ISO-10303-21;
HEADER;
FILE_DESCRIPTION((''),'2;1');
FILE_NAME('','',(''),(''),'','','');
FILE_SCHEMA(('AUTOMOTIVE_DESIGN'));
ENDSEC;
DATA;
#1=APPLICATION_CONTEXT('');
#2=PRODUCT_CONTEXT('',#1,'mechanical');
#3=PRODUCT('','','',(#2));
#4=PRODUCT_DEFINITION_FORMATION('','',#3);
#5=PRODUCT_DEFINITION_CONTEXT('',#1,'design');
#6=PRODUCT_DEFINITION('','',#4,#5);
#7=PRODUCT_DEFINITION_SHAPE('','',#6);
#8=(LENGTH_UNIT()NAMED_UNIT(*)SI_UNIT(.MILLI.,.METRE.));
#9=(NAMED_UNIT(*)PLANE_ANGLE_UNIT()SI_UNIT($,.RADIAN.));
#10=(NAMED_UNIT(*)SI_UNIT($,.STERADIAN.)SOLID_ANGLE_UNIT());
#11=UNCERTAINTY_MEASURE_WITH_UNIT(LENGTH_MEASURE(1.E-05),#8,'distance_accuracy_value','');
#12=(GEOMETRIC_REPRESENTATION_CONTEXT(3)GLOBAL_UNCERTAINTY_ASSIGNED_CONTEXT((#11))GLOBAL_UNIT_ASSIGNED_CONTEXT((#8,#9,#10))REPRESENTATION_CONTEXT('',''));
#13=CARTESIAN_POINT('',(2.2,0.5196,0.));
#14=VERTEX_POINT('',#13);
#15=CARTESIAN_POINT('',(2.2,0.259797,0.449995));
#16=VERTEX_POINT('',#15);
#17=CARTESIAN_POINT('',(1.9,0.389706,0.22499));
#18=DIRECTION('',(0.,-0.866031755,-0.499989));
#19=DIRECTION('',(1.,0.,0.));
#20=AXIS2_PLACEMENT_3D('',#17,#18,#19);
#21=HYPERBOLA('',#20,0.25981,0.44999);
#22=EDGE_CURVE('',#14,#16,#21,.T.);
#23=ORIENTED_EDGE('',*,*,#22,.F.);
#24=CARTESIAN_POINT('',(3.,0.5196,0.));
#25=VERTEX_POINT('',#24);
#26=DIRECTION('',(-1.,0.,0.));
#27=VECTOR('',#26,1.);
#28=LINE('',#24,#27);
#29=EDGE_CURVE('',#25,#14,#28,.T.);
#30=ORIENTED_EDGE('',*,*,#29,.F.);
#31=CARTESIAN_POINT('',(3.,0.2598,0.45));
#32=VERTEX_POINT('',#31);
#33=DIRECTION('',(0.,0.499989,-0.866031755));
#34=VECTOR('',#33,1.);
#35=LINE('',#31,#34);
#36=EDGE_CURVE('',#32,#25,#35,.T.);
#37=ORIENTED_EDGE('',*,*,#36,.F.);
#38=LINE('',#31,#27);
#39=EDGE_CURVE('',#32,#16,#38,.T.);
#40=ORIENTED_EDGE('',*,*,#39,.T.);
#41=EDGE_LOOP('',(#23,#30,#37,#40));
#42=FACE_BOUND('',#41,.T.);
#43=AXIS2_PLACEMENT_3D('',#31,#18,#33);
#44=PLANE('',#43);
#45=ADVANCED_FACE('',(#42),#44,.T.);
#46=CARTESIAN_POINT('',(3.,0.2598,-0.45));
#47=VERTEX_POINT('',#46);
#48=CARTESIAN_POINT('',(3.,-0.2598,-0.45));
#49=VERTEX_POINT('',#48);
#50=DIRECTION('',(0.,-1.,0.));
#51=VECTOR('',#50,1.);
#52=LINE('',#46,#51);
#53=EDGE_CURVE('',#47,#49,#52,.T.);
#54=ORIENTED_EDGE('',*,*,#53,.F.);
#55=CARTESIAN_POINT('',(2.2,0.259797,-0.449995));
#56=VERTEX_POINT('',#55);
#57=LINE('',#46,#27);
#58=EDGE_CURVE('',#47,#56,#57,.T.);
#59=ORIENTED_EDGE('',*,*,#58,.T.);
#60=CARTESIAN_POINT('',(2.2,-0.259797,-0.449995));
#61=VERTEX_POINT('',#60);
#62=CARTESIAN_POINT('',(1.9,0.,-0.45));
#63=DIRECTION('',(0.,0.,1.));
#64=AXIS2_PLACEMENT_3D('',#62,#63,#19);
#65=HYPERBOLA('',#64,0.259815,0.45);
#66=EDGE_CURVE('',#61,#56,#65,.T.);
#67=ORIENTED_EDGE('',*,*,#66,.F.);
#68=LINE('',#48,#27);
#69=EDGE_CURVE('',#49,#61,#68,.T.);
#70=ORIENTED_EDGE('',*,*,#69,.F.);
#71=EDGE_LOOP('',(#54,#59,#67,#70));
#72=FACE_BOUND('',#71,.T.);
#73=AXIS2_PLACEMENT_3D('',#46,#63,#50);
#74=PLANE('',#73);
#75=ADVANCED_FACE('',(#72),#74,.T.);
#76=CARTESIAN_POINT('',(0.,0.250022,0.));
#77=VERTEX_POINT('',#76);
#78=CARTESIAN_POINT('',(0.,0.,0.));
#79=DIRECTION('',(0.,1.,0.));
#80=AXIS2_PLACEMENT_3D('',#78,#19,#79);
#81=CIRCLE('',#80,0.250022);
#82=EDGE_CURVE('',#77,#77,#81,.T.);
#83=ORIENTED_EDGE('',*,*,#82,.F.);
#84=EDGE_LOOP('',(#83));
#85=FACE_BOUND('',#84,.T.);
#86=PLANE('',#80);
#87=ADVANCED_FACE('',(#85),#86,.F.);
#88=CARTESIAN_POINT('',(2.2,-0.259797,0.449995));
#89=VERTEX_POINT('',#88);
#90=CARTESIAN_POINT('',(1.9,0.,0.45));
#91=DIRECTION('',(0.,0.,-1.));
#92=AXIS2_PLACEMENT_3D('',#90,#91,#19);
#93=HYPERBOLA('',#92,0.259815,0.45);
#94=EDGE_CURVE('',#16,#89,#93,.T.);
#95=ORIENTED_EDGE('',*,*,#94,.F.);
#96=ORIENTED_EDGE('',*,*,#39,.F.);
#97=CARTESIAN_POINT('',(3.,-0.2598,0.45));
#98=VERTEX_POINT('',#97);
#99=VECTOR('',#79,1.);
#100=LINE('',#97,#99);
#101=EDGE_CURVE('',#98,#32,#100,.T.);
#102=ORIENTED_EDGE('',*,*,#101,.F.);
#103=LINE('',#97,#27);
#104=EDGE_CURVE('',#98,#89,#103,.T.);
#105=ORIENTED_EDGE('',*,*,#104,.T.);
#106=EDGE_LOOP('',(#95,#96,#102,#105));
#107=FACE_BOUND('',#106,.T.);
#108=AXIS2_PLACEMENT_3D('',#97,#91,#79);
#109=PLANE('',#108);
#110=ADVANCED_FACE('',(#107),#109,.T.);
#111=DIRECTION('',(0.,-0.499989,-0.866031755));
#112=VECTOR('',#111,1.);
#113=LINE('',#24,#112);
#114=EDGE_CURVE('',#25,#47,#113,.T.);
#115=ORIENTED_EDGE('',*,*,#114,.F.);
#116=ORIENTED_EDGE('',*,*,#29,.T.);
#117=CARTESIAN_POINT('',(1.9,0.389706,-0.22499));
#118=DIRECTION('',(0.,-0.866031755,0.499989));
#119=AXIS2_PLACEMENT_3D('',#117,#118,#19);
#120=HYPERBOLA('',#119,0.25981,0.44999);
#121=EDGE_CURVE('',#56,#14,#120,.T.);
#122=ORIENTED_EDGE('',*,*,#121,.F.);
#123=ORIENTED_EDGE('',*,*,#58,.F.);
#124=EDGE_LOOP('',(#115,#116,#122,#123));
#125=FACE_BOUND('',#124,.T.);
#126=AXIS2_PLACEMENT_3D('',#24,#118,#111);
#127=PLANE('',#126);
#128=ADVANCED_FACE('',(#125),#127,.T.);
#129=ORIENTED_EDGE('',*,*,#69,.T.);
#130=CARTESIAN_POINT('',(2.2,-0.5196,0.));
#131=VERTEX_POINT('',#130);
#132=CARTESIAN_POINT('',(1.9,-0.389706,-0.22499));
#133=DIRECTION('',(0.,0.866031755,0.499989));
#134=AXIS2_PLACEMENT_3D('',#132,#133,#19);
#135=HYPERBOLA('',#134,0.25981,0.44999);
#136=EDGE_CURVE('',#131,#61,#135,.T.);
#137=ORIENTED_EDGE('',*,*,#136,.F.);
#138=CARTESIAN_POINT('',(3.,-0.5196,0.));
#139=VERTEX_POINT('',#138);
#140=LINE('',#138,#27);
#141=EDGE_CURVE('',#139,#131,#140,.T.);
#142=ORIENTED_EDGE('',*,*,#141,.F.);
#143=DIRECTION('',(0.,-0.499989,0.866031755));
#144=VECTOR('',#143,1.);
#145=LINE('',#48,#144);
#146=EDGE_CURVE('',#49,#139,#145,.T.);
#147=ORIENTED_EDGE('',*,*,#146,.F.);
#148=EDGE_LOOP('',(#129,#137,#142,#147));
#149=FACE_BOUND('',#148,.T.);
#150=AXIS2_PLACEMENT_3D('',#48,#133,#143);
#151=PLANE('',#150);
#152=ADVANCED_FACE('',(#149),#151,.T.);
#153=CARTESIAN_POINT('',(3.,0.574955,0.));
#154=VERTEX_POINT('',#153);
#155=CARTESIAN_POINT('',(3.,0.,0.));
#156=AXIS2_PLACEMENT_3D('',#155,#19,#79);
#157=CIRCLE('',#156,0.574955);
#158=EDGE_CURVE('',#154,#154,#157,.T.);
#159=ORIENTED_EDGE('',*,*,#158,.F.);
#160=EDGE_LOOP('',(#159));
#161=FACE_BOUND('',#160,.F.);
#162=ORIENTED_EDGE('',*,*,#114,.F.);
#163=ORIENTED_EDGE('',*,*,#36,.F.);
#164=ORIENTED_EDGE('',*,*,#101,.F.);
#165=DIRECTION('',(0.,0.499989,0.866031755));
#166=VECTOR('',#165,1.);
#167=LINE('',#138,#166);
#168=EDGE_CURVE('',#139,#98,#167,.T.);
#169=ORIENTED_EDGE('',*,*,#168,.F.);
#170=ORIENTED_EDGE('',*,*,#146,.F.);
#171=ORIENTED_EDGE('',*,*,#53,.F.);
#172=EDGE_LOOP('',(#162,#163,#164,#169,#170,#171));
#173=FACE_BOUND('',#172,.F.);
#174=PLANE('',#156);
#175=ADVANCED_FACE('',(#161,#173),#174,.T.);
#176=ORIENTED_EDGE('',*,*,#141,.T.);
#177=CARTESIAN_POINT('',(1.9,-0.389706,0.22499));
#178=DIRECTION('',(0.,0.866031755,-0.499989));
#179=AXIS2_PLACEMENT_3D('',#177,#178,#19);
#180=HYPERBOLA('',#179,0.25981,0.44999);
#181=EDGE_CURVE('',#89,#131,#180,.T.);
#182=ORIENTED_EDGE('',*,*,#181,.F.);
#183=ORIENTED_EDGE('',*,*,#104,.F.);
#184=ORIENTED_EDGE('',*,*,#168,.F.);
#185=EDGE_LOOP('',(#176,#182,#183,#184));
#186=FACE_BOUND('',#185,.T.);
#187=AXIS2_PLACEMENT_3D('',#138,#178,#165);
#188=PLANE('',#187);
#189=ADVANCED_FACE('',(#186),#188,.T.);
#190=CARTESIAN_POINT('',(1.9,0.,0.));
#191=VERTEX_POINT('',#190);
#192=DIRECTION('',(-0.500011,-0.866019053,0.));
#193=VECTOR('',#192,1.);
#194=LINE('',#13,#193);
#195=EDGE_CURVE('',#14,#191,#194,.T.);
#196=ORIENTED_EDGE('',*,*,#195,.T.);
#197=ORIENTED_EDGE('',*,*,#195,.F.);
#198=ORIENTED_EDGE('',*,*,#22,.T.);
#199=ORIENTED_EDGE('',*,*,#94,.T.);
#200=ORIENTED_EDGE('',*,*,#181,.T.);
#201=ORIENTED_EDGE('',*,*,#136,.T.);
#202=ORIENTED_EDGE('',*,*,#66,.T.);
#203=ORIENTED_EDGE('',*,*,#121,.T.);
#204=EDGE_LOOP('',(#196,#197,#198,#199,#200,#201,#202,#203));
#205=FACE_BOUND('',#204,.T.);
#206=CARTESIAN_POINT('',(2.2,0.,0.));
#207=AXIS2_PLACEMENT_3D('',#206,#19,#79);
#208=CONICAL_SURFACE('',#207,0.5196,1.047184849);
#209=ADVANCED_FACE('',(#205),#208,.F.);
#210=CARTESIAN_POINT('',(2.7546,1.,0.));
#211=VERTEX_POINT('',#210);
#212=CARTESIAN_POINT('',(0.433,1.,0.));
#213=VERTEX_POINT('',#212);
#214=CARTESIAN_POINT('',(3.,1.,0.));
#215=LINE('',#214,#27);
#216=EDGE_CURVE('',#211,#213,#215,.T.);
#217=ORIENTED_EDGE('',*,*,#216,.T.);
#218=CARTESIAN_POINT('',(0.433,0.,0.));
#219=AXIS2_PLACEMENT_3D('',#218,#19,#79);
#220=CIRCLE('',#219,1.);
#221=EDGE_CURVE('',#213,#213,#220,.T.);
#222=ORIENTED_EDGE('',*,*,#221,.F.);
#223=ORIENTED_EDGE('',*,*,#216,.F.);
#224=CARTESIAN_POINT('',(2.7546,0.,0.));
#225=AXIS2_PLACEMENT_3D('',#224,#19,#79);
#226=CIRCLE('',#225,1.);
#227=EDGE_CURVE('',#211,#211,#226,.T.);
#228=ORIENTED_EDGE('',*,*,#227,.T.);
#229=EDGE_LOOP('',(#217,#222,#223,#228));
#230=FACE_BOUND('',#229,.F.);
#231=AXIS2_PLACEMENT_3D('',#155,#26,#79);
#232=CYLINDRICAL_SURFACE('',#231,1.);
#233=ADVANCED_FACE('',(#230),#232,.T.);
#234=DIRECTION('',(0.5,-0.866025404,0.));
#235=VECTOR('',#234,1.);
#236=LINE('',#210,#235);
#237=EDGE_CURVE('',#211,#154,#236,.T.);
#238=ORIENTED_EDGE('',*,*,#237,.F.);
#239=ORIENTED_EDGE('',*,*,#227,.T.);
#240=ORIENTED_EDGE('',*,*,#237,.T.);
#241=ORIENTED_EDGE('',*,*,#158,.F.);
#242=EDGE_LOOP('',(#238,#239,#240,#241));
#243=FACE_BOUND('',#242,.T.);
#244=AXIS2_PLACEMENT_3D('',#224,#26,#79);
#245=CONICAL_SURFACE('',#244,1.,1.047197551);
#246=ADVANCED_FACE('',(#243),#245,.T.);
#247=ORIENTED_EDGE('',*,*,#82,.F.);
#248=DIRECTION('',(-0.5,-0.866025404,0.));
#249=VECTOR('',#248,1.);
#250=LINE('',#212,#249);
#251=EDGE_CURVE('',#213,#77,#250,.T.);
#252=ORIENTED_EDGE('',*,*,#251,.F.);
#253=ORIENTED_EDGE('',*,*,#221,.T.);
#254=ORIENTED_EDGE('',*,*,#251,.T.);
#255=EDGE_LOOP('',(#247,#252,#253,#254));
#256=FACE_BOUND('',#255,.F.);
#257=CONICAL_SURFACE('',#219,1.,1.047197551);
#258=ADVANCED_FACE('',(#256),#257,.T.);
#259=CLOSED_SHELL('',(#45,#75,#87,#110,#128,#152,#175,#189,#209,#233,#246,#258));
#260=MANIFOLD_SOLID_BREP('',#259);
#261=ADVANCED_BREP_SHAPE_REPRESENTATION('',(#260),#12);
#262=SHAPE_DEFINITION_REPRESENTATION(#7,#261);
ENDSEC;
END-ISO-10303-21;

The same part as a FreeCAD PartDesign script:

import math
import FreeCAD as App
import Part
import Sketcher
Q = App.Units.Quantity


def edges_at(feature, points):
    """Names of the edges that pass closest to the given points."""
    edges = feature.Shape.Edges
    near = lambda p: min(range(len(edges)), key=lambda i: edges[i].distToShape(Part.Vertex(*p))[0])
    return sorted({f"Edge{near(p) + 1}" for p in points})


def add_polygon(sketch, points):
    """Adds a closed chain of lines whose ends are joined by coincident constraints."""
    first, n = sketch.GeometryCount, len(points)
    for a, b in zip(points, points[1:] + points[:1]):
        sketch.addGeometry(Part.LineSegment(App.Vector(*a, 0), App.Vector(*b, 0)), False)
    for i in range(n):
        sketch.addConstraint(Sketcher.Constraint("Coincident", first + i, 2, first + (i + 1) % n, 1))

doc = App.newDocument("Part")
body = doc.addObject("PartDesign::Body", "Body")

sketch1 = body.newObject("Sketcher::SketchObject", "Sketch")
sketch1.AttachmentSupport = (doc.getObject("XY_Plane"), [""])
sketch1.MapMode = "FlatFace"
add_polygon(sketch1, [(0, 1), (0, 0), (1.9, 0), (2.2, 0.52), (3, 0.52), (3, 1)])
sketch1.addConstraint(Sketcher.Constraint("Vertical", 0))
sketch1.addConstraint(Sketcher.Constraint("Horizontal", 1))
sketch1.addConstraint(Sketcher.Constraint("Horizontal", 3))
sketch1.addConstraint(Sketcher.Constraint("Vertical", 4))
sketch1.addConstraint(Sketcher.Constraint("Horizontal", 5))
sketch1.addConstraint(Sketcher.Constraint("Coincident", 0, 2, -1, 1))
sketch1.addConstraint(Sketcher.Constraint("DistanceX", 5, 2, 5, 1, Q("3 mm")))
sketch1.addConstraint(Sketcher.Constraint("DistanceX", 3, 1, 3, 2, Q("0.8 mm")))
sketch1.addConstraint(Sketcher.Constraint("DistanceY", 0, 2, 0, 1, Q("1 mm")))
sketch1.addConstraint(Sketcher.Constraint("Angle", 2, Q("59.9993 deg")))
sketch1.addConstraint(Sketcher.Constraint("DistanceX", 1, 1, 1, 2, Q("1.9 mm")))
revolution = body.newObject("PartDesign::Revolution", "Revolution")
revolution.Profile = sketch1
revolution.ReferenceAxis = (sketch1, ["H_Axis"])
revolution.Angle = 360

sketch2 = body.newObject("Sketcher::SketchObject", "Sketch001")
sketch2.AttachmentSupport = (doc.getObject("YZ_Plane"), [""])
sketch2.MapMode = "FlatFace"
sketch2.AttachmentOffset = App.Placement(App.Vector(0, 0, 3), App.Rotation())
sketch2.addGeometry(Part.LineSegment(App.Vector(0.3, 0.5, 0), App.Vector(0.5, 0, 0)), False)
sketch2.addGeometry(Part.ArcOfCircle(Part.Circle(App.Vector(0, 0, 0), App.Vector(0, 0, 1), 0.5), math.radians(0), math.radians(60)), False)
sketch2.addGeometry(Part.ArcOfCircle(Part.Circle(App.Vector(0, 0, 0), App.Vector(0, 0, 1), 0.5), math.radians(-60), math.radians(0)), False)
sketch2.addGeometry(Part.LineSegment(App.Vector(0.5, 0, 0), App.Vector(0.3, -0.5, 0)), False)
sketch2.addGeometry(Part.LineSegment(App.Vector(-0.3, 0.5, 0), App.Vector(0.3, 0.5, 0)), False)
sketch2.addGeometry(Part.ArcOfCircle(Part.Circle(App.Vector(0, 0, 0), App.Vector(0, 0, 1), 0.5), math.radians(60), math.radians(120)), False)
sketch2.addGeometry(Part.ArcOfCircle(Part.Circle(App.Vector(0, 0, 0), App.Vector(0, 0, 1), 0.5), math.radians(-120), math.radians(-60)), False)
sketch2.addGeometry(Part.LineSegment(App.Vector(-0.3, -0.5, 0), App.Vector(0.3, -0.5, 0)), False)
sketch2.addGeometry(Part.LineSegment(App.Vector(-0.5, 0, 0), App.Vector(-0.3, 0.5, 0)), False)
sketch2.addGeometry(Part.ArcOfCircle(Part.Circle(App.Vector(0, 0, 0), App.Vector(0, 0, 1), 0.5), math.radians(120), math.radians(180)), False)
sketch2.addGeometry(Part.ArcOfCircle(Part.Circle(App.Vector(0, 0, 0), App.Vector(0, 0, 1), 0.5), math.radians(180), math.radians(240)), False)
sketch2.addGeometry(Part.LineSegment(App.Vector(-0.5, 0, 0), App.Vector(-0.3, -0.5, 0)), False)
sketch2.addConstraint(Sketcher.Constraint("Coincident", 0, 1, 1, 2))
sketch2.addConstraint(Sketcher.Constraint("Coincident", 1, 1, 0, 2))
sketch2.addConstraint(Sketcher.Constraint("Coincident", 2, 1, 3, 2))
sketch2.addConstraint(Sketcher.Constraint("Coincident", 3, 1, 2, 2))
sketch2.addConstraint(Sketcher.Constraint("Coincident", 4, 1, 5, 2))
sketch2.addConstraint(Sketcher.Constraint("Coincident", 5, 1, 4, 2))
sketch2.addConstraint(Sketcher.Constraint("Coincident", 6, 1, 7, 1))
sketch2.addConstraint(Sketcher.Constraint("Coincident", 7, 2, 6, 2))
sketch2.addConstraint(Sketcher.Constraint("Coincident", 8, 1, 9, 2))
sketch2.addConstraint(Sketcher.Constraint("Coincident", 9, 1, 8, 2))
sketch2.addConstraint(Sketcher.Constraint("Coincident", 10, 1, 11, 1))
sketch2.addConstraint(Sketcher.Constraint("Coincident", 11, 2, 10, 2))
sketch2.addConstraint(Sketcher.Constraint("Horizontal", 4))
sketch2.addConstraint(Sketcher.Constraint("Horizontal", 7))
sketch2.addConstraint(Sketcher.Constraint("Coincident", 1, 3, -1, 1))
sketch2.addConstraint(Sketcher.Constraint("Coincident", 2, 3, -1, 1))
sketch2.addConstraint(Sketcher.Constraint("Coincident", 5, 3, -1, 1))
sketch2.addConstraint(Sketcher.Constraint("Coincident", 6, 3, -1, 1))
sketch2.addConstraint(Sketcher.Constraint("Coincident", 9, 3, -1, 1))
sketch2.addConstraint(Sketcher.Constraint("Coincident", 10, 3, -1, 1))
sketch2.addConstraint(Sketcher.Constraint("Coincident", 3, 1, 1, 1))
sketch2.addConstraint(Sketcher.Constraint("Coincident", 5, 1, 0, 1))
sketch2.addConstraint(Sketcher.Constraint("Coincident", 7, 2, 2, 1))
sketch2.addConstraint(Sketcher.Constraint("Coincident", 9, 1, 4, 1))
sketch2.addConstraint(Sketcher.Constraint("Coincident", 10, 1, 8, 1))
sketch2.addConstraint(Sketcher.Constraint("PointOnObject", 1, 1, -1))
sketch2.addConstraint(Sketcher.Constraint("PointOnObject", 8, 1, -1))
sketch2.addConstraint(Sketcher.Constraint("Parallel", 3, 8))
sketch2.addConstraint(Sketcher.Constraint("Parallel", 0, 11))
sketch2.addConstraint(Sketcher.Constraint("Angle", 0, Q("-60.0007 deg")))
sketch2.addConstraint(Sketcher.Constraint("Radius", 1, Q("0.5196 mm")))
pad1 = body.newObject("PartDesign::Pad", "Pad")
pad1.Profile = sketch2
pad1.Type = "UpToFirst"
pad1.Reversed = True
doc.recompute()

chamfer = body.newObject("PartDesign::Chamfer", "Chamfer")
chamfer.Base = (pad1, edges_at(pad1, [(0, -1, 0)]))
chamfer.ChamferType = "Distance and Angle"
chamfer.Size = 0.433
chamfer.Angle = 60
chamfer.FlipDirection = True
doc.recompute()

chamfer2 = body.newObject("PartDesign::Chamfer", "Chamfer001")
chamfer2.Base = (chamfer, edges_at(chamfer, [(3, -1, 0)]))
chamfer2.ChamferType = "Distance and Angle"
chamfer2.Size = 0.2454
chamfer2.Angle = 60

doc.recompute()
